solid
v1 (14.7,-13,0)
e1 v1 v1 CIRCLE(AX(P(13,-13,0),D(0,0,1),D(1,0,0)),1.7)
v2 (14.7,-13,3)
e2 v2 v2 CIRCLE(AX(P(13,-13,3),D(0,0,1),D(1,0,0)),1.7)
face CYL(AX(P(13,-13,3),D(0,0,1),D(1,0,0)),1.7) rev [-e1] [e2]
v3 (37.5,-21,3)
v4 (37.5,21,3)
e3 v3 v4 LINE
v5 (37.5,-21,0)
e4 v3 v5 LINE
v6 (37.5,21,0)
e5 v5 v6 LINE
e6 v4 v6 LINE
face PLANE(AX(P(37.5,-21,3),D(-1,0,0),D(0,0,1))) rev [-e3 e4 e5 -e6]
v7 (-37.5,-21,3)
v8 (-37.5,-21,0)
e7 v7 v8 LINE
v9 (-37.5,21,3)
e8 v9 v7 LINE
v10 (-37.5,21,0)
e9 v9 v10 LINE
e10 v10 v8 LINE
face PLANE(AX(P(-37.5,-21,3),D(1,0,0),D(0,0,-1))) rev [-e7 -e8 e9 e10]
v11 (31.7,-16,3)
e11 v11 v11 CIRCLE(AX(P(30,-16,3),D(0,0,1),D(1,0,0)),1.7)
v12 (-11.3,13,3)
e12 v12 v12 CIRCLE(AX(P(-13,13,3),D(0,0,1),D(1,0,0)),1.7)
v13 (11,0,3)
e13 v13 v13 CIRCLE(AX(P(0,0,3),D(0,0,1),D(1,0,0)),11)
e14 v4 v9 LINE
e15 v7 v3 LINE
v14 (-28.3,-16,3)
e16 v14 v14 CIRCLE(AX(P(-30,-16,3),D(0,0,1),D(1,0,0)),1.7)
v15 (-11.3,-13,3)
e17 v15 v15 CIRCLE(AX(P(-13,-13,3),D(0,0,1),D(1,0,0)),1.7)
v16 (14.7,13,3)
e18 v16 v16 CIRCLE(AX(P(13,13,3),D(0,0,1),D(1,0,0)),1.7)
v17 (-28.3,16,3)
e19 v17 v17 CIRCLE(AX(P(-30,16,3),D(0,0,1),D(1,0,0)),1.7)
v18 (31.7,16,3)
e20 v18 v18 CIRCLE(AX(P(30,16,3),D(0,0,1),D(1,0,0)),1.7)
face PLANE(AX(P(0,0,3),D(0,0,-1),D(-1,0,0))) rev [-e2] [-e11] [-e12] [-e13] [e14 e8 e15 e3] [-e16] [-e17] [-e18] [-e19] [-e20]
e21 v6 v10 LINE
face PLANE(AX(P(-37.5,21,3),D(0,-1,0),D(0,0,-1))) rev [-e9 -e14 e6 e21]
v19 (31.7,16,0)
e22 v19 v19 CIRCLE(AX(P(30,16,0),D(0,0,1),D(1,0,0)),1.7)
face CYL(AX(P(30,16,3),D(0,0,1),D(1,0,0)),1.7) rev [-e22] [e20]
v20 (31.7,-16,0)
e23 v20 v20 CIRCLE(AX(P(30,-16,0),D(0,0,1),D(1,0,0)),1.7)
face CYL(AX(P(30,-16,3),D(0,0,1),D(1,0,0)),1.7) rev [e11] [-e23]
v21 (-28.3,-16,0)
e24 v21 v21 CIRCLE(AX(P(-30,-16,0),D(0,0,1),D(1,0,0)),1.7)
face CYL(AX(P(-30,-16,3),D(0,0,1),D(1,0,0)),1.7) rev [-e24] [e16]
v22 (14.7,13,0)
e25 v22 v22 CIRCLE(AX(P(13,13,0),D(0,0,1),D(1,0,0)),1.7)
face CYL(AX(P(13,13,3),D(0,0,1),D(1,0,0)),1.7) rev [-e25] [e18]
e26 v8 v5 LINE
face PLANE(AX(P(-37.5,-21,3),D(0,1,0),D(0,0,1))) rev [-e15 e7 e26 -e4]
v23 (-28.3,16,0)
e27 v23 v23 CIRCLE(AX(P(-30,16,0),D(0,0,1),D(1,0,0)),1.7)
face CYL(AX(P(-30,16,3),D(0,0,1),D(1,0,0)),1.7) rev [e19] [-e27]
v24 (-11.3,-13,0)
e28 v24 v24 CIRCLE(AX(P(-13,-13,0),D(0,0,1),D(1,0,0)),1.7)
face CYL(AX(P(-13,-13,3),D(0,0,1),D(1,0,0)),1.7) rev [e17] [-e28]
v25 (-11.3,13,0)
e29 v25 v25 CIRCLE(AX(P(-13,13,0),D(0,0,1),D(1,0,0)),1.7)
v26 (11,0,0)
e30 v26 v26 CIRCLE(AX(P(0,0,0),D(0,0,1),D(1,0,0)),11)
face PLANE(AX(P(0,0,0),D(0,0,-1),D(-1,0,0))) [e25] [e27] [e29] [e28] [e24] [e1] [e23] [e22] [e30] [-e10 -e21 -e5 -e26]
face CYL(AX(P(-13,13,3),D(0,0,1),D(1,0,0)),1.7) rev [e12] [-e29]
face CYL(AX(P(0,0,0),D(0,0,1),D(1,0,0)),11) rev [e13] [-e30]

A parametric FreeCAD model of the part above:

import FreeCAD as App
import Part
import Sketcher
from FreeCAD import Vector


def add_polygon(sketch, points):
    """Adds a closed chain of lines whose ends are joined by coincident constraints."""
    first, n = sketch.GeometryCount, len(points)
    for a, b in zip(points, points[1:] + points[:1]):
        sketch.addGeometry(Part.LineSegment(App.Vector(*a, 0), App.Vector(*b, 0)), False)
    for i in range(n):
        sketch.addConstraint(Sketcher.Constraint("Coincident", first + i, 2, first + (i + 1) % n, 1))

doc = App.newDocument("Part")
params = doc.addObject("Spreadsheet::Sheet", "Params")
for row, (alias, value) in enumerate([
    ("sketch1_width", "75 mm"),
    ("sketch1_height", "42 mm"),
    ("pad1_length", "3 mm"),
    ("sketch2_diameter", "22 mm"),
    ("sketch3_diameter", "3.4 mm"),
    ("hole_diameter", "3.4 mm"),
    ("sketch4_diameter", "3.4 mm"),
    ("hole2_diameter", "3.4 mm"),
], start=1):
    params.set(f"A{row}", alias)
    params.set(f"B{row}", "=" + value)
    params.setAlias(f"B{row}", alias)

body = doc.addObject("PartDesign::Body", "Body")

sketch1 = body.newObject("Sketcher::SketchObject", "Sketch")
sketch1.AttachmentSupport = (doc.getObject("XY_Plane"), [""])
sketch1.MapMode = "FlatFace"
add_polygon(sketch1, [(-38, 21), (-38, -21), (38, -21), (38, 21)])
sketch1.addConstraint([
    Sketcher.Constraint("Vertical", 0),
    Sketcher.Constraint("Horizontal", 1),
    Sketcher.Constraint("Vertical", 2),
    Sketcher.Constraint("Horizontal", 3),
    Sketcher.Constraint("Symmetric", 0, 2, 2, 2, -1, 1),
    Sketcher.Constraint("DistanceX", 1, 1, 1, 2, 75.0),
    Sketcher.Constraint("DistanceY", 0, 2, 0, 1, 42.0),
])
sketch1.setExpression("Constraints[9]", "Params.sketch1_width")
sketch1.setExpression("Constraints[10]", "Params.sketch1_height")
pad1 = body.newObject("PartDesign::Pad", "Pad")
pad1.Profile = sketch1
pad1.setExpression("Length", "Params.pad1_length")

sketch2 = body.newObject("Sketcher::SketchObject", "Sketch001")
sketch2.AttachmentSupport = (doc.getObject("XY_Plane"), [""])
sketch2.MapMode = "FlatFace"
sketch2.AttachmentOffset = App.Placement(Vector(0, 0, 3), App.Rotation())
sketch2.addGeometry(Part.Circle(Vector(0, 0, 0), Vector(0, 0, 1), 11), False)
sketch2.addConstraint([
    Sketcher.Constraint("Coincident", 0, 3, -1, 1),
    Sketcher.Constraint("Diameter", 0, 22.0),
])
sketch2.setExpression("Constraints[1]", "Params.sketch2_diameter")
pocket1 = body.newObject("PartDesign::Pocket", "Pocket")
pocket1.Profile = sketch2
pocket1.Type = "ThroughAll"

sketch3 = body.newObject("Sketcher::SketchObject", "Sketch002")
sketch3.AttachmentSupport = (doc.getObject("XY_Plane"), [""])
sketch3.MapMode = "FlatFace"
sketch3.AttachmentOffset = App.Placement(Vector(0, 0, 3), App.Rotation())
sketch3.addGeometry([
    Part.Circle(Vector(-13, -13, 0), Vector(0, 0, 1), 1.7),
    Part.Circle(Vector(13, -13, 0), Vector(0, 0, 1), 1.7),
    Part.Circle(Vector(13, 13, 0), Vector(0, 0, 1), 1.7),
    Part.Circle(Vector(-13, 13, 0), Vector(0, 0, 1), 1.7),
], False)
sketch3.addConstraint([
    Sketcher.Constraint("Equal", 0, 1),
    Sketcher.Constraint("Equal", 1, 2),
    Sketcher.Constraint("Equal", 2, 3),
    Sketcher.Constraint("Symmetric", 0, 3, 2, 3, -1, 1),
    Sketcher.Constraint("Symmetric", 1, 3, 3, 3, -1, 1),
    Sketcher.Constraint("Symmetric", 0, 3, 1, 3, -2),
    Sketcher.Constraint("Diameter", 0, 3.4),
    Sketcher.Constraint("DistanceX", 0, 3, -1, 1, 13.0),
    Sketcher.Constraint("DistanceY", 0, 3, -1, 1, 13.0),
])
sketch3.setExpression("Constraints[6]", "Params.sketch3_diameter")
doc.recompute()
hole = body.newObject("PartDesign::Hole", "Hole")
hole.Profile = sketch3
hole.ThreadType = "None"
hole.setExpression("Diameter", "Params.hole_diameter")
hole.DepthType = "ThroughAll"

sketch4 = body.newObject("Sketcher::SketchObject", "Sketch003")
sketch4.AttachmentSupport = (doc.getObject("XY_Plane"), [""])
sketch4.MapMode = "FlatFace"
sketch4.AttachmentOffset = App.Placement(Vector(0, 0, 3), App.Rotation())
sketch4.addGeometry([
    Part.Circle(Vector(-30, -16, 0), Vector(0, 0, 1), 1.7),
    Part.Circle(Vector(-30, 16, 0), Vector(0, 0, 1), 1.7),
    Part.Circle(Vector(30, -16, 0), Vector(0, 0, 1), 1.7),
    Part.Circle(Vector(30, 16, 0), Vector(0, 0, 1), 1.7),
], False)
sketch4.addConstraint([
    Sketcher.Constraint("Equal", 0, 1),
    Sketcher.Constraint("Equal", 1, 2),
    Sketcher.Constraint("Equal", 2, 3),
    Sketcher.Constraint("Symmetric", 1, 3, 2, 3, -1, 1),
    Sketcher.Constraint("Symmetric", 0, 3, 3, 3, -1, 1),
    Sketcher.Constraint("Symmetric", 0, 3, 2, 3, -2),
    Sketcher.Constraint("Diameter", 0, 3.4),
    Sketcher.Constraint("DistanceX", 0, 3, -1, 1, 30.0),
    Sketcher.Constraint("DistanceY", 0, 3, -1, 1, 16.0),
])
sketch4.setExpression("Constraints[6]", "Params.sketch4_diameter")
doc.recompute()
hole2 = body.newObject("PartDesign::Hole", "Hole001")
hole2.Profile = sketch4
hole2.ThreadType = "None"
hole2.setExpression("Diameter", "Params.hole2_diameter")
hole2.DepthType = "ThroughAll"

doc.recompute()
